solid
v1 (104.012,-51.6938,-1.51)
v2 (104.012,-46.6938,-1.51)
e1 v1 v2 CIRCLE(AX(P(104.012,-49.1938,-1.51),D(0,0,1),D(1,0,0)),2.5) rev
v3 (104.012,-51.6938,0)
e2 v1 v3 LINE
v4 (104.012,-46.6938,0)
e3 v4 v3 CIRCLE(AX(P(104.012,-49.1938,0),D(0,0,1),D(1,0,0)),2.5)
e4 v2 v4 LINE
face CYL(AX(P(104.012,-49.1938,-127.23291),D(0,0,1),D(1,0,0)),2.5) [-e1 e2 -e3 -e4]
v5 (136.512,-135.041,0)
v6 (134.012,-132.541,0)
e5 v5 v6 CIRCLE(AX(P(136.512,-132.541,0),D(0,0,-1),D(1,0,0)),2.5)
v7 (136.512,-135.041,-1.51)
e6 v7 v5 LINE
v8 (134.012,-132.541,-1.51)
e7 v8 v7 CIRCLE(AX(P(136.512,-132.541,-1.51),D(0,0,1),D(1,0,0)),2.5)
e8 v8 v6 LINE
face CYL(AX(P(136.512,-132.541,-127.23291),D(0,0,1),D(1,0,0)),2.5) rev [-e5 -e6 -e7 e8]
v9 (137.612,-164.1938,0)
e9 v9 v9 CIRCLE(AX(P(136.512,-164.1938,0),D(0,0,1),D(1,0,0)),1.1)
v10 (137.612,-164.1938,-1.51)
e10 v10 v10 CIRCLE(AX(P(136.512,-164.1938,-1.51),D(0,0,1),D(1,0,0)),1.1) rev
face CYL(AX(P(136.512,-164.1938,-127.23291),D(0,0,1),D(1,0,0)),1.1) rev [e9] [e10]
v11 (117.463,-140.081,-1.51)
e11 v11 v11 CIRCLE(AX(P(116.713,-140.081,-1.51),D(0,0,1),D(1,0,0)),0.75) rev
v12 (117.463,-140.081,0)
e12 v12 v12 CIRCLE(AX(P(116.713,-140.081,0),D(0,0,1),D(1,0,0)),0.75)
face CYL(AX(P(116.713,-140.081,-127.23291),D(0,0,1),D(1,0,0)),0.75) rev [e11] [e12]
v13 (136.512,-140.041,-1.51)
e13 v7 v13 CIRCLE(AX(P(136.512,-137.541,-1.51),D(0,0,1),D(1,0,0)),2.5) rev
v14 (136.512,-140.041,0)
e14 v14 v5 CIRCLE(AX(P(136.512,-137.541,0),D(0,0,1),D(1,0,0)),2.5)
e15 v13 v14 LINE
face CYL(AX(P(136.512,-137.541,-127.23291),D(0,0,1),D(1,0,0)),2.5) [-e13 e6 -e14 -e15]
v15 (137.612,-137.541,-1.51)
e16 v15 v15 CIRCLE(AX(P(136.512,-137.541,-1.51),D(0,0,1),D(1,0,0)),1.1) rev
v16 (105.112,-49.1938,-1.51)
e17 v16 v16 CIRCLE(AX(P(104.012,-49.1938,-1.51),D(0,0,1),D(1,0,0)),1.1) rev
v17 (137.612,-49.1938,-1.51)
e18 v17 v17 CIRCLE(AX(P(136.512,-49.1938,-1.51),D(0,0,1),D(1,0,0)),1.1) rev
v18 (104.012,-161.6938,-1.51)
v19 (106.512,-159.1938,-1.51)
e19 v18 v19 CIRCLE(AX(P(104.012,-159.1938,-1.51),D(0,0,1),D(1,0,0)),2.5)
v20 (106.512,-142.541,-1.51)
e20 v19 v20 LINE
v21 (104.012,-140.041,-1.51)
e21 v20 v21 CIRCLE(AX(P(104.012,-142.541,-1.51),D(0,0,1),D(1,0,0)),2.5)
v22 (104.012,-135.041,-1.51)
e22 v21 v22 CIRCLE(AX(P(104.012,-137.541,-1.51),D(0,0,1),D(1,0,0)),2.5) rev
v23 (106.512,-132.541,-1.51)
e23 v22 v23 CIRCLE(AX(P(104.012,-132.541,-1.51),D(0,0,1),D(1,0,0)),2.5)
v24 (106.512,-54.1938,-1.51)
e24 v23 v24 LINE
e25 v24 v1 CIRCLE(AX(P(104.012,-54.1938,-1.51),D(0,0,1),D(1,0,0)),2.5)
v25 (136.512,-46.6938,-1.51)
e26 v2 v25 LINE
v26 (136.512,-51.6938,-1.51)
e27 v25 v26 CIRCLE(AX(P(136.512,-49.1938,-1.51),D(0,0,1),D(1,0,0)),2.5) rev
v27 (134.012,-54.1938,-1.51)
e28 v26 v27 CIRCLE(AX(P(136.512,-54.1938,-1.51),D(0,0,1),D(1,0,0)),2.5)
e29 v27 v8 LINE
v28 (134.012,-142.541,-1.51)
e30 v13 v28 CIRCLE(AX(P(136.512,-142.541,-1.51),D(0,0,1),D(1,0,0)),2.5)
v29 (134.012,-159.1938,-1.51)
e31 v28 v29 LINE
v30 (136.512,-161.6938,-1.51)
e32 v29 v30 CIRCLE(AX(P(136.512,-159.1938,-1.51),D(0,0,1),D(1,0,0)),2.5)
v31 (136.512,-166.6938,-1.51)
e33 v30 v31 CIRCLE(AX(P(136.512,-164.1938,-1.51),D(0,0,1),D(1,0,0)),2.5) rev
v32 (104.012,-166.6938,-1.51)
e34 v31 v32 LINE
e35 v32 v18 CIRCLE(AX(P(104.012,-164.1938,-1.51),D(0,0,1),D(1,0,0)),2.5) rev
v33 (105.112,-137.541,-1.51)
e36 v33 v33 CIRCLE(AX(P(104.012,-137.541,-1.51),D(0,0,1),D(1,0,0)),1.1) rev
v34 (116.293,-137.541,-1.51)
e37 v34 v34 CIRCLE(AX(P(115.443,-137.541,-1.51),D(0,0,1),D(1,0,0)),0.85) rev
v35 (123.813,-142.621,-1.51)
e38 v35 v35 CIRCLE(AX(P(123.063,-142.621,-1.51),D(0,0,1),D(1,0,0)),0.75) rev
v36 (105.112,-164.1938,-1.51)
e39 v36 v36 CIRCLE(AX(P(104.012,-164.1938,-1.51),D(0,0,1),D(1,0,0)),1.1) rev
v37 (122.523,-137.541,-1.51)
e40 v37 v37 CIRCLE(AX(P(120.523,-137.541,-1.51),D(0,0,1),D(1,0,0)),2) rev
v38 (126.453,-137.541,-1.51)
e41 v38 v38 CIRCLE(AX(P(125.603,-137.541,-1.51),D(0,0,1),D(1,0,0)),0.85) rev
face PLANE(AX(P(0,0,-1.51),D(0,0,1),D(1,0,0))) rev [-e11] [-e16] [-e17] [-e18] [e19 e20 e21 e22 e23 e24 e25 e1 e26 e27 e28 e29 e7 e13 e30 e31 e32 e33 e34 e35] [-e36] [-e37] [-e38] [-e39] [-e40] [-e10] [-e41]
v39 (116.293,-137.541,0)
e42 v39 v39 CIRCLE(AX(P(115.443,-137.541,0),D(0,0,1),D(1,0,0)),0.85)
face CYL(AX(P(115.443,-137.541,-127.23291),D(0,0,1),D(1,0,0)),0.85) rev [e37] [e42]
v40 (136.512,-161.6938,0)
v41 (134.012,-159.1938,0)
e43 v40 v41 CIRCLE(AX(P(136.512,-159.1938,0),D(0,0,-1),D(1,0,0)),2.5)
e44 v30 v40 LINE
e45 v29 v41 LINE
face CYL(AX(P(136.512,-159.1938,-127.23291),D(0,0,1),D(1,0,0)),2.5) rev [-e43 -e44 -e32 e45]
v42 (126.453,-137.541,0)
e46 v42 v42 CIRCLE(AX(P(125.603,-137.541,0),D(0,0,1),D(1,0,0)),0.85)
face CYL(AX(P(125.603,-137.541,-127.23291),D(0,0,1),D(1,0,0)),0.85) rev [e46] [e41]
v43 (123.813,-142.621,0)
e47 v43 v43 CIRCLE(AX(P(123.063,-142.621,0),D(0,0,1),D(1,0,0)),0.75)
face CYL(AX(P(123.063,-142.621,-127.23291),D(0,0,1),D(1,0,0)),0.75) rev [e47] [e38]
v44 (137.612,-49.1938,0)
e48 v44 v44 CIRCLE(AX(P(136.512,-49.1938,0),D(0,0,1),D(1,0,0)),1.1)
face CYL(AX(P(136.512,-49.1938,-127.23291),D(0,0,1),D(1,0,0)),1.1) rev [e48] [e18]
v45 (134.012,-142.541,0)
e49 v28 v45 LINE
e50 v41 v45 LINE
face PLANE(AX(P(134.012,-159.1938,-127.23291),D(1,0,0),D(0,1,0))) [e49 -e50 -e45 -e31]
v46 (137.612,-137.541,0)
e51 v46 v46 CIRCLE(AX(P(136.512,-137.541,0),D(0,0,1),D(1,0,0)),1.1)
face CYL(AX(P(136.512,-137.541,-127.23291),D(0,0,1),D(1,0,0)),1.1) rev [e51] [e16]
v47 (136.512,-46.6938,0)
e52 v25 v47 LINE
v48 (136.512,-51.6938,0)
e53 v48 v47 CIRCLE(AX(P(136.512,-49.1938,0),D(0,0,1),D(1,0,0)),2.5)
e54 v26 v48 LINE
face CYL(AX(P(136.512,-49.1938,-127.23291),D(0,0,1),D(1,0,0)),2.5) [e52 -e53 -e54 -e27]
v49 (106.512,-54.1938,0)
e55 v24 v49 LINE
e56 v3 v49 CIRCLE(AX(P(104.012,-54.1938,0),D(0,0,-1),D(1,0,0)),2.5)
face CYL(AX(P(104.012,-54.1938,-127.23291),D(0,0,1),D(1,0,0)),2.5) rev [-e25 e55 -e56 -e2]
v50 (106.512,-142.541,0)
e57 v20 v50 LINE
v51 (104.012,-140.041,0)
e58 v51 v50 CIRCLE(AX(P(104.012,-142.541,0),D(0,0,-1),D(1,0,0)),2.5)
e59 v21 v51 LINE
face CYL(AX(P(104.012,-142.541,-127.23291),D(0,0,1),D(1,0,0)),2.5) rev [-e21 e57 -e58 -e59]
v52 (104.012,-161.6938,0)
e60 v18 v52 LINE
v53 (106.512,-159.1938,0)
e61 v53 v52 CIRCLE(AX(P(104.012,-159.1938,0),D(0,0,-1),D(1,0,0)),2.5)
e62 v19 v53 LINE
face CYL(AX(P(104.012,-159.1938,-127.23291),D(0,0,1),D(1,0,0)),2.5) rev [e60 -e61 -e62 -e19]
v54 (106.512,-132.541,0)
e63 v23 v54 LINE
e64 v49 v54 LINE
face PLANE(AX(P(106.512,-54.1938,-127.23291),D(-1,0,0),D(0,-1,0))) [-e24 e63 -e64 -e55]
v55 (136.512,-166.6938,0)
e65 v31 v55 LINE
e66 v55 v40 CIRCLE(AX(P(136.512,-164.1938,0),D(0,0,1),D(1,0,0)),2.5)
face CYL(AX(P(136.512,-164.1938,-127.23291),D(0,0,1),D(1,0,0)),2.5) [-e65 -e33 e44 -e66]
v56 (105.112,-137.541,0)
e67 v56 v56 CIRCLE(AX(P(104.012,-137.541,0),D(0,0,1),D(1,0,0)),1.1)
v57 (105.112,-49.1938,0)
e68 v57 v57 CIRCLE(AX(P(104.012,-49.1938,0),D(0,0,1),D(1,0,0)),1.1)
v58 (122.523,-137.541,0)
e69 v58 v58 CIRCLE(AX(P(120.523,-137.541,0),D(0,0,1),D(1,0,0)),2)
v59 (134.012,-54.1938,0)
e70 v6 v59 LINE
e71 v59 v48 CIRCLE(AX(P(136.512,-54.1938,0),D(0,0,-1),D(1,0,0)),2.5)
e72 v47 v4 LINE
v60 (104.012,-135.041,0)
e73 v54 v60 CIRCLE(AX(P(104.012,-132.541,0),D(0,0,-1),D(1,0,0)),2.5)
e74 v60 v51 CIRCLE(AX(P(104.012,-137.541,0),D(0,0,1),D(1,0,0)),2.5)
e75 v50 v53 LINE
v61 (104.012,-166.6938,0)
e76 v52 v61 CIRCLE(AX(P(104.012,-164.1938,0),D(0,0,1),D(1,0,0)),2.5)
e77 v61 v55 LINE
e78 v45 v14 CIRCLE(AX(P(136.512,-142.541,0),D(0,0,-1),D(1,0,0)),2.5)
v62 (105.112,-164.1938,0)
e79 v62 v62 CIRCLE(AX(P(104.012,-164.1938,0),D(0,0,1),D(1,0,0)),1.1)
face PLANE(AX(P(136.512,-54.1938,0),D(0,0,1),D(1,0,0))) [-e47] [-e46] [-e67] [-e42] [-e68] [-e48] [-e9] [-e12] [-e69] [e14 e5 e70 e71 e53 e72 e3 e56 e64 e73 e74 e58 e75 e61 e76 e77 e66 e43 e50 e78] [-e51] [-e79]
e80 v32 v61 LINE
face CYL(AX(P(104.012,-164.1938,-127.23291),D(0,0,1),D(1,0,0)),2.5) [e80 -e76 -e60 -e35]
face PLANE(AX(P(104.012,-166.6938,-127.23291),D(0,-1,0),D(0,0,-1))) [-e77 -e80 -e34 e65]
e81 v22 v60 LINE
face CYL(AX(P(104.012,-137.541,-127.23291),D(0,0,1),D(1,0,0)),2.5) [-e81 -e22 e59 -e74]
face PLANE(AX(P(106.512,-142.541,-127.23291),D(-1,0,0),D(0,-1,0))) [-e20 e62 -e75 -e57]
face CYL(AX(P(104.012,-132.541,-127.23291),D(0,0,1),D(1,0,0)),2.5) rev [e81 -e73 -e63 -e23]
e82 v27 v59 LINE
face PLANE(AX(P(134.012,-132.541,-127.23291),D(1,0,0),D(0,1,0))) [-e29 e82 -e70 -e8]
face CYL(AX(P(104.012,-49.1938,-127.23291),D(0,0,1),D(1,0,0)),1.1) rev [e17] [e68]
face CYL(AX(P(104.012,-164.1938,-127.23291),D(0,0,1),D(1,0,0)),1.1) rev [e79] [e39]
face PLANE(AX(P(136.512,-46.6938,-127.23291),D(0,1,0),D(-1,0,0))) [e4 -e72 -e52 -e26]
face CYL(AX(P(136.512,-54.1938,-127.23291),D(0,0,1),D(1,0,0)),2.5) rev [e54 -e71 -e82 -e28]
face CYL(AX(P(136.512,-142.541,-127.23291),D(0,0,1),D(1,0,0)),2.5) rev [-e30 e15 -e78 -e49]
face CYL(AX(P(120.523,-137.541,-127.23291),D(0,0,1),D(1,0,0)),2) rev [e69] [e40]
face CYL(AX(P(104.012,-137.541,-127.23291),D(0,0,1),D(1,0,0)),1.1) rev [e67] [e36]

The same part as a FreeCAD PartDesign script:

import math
import FreeCAD as App
import Part
import Sketcher

V = App.Vector

doc = App.newDocument("Part")
params = doc.addObject("Spreadsheet::Sheet", "Params")
for row, (alias, value) in enumerate([
    ("sketch1_diameter", "4 mm"),
    ("sketch1_diameter2", "2.2 mm"),
    ("sketch1_diameter3", "1.7 mm"),
    ("sketch1_diameter4", "1.5 mm"),
    ("sketch1_radius", "2.5 mm"),
    ("pad1_length", "1.51 mm"),
], start=1):
    params.set(f"A{row}", alias)
    params.set(f"B{row}", "=" + value)
    params.setAlias(f"B{row}", alias)

body = doc.addObject("PartDesign::Body", "Body")

sketch1 = body.newObject("Sketcher::SketchObject", "Sketch")
sketch1.AttachmentSupport = (doc.getObject("XY_Plane"), [""])
sketch1.MapMode = "FlatFace"
sketch1.addGeometry(Part.LineSegment(V(136.5, -46.7, 0), V(104, -46.7, 0)), False)
sketch1.addGeometry(Part.ArcOfCircle(Part.Circle(V(104, -49.2, 0), V(0, 0, 1), 2.5), math.radians(90), math.radians(270)), False)
sketch1.addGeometry(Part.ArcOfCircle(Part.Circle(V(104, -54.2, 0), V(0, 0, 1), 2.5), math.radians(0), math.radians(90)), False)
sketch1.addGeometry(Part.LineSegment(V(106.5, -54.2, 0), V(106.5, -132.5, 0)), False)
sketch1.addGeometry(Part.ArcOfCircle(Part.Circle(V(104, -132.5, 0), V(0, 0, 1), 2.5), math.radians(-90), math.radians(0)), False)
sketch1.addGeometry(Part.ArcOfCircle(Part.Circle(V(104, -137.5, 0), V(0, 0, 1), 2.5), math.radians(90), math.radians(270)), False)
sketch1.addGeometry(Part.ArcOfCircle(Part.Circle(V(104, -142.5, 0), V(0, 0, 1), 2.5), math.radians(0), math.radians(90)), False)
sketch1.addGeometry(Part.LineSegment(V(106.5, -142.5, 0), V(106.5, -159.2, 0)), False)
sketch1.addGeometry(Part.ArcOfCircle(Part.Circle(V(104, -159.2, 0), V(0, 0, 1), 2.5), math.radians(-90), math.radians(0)), False)
sketch1.addGeometry(Part.ArcOfCircle(Part.Circle(V(104, -164.2, 0), V(0, 0, 1), 2.5), math.radians(90), math.radians(270)), False)
sketch1.addGeometry(Part.LineSegment(V(104, -166.7, 0), V(136.5, -166.7, 0)), False)
sketch1.addGeometry(Part.ArcOfCircle(Part.Circle(V(136.5, -164.2, 0), V(0, 0, 1), 2.5), math.radians(-90), math.radians(90)), False)
sketch1.addGeometry(Part.ArcOfCircle(Part.Circle(V(136.5, -159.2, 0), V(0, 0, 1), 2.5), math.radians(180), math.radians(270)), False)
sketch1.addGeometry(Part.LineSegment(V(134, -159.2, 0), V(134, -142.5, 0)), False)
sketch1.addGeometry(Part.ArcOfCircle(Part.Circle(V(136.5, -142.5, 0), V(0, 0, 1), 2.5), math.radians(90), math.radians(180)), False)
sketch1.addGeometry(Part.ArcOfCircle(Part.Circle(V(136.5, -137.5, 0), V(0, 0, 1), 2.5), math.radians(-90), math.radians(90)), False)
sketch1.addGeometry(Part.ArcOfCircle(Part.Circle(V(136.5, -132.5, 0), V(0, 0, 1), 2.5), math.radians(180), math.radians(270)), False)
sketch1.addGeometry(Part.LineSegment(V(134, -132.5, 0), V(134, -54.2, 0)), False)
sketch1.addGeometry(Part.ArcOfCircle(Part.Circle(V(136.5, -54.2, 0), V(0, 0, 1), 2.5), math.radians(90), math.radians(180)), False)
sketch1.addGeometry(Part.ArcOfCircle(Part.Circle(V(136.5, -49.2, 0), V(0, 0, 1), 2.5), math.radians(-90), math.radians(90)), False)
sketch1.addGeometry(Part.Circle(V(104, -164.2, 0), V(0, 0, 1), 1.1), False)
sketch1.addGeometry(Part.Circle(V(104, -137.5, 0), V(0, 0, 1), 1.1), False)
sketch1.addGeometry(Part.Circle(V(115.4, -137.5, 0), V(0, 0, 1), 0.8), False)
sketch1.addGeometry(Part.Circle(V(116.7, -140.1, 0), V(0, 0, 1), 0.8), False)
sketch1.addGeometry(Part.Circle(V(120.5, -137.5, 0), V(0, 0, 1), 2), False)
sketch1.addGeometry(Part.Circle(V(123.1, -142.6, 0), V(0, 0, 1), 0.8), False)
sketch1.addGeometry(Part.Circle(V(125.6, -137.5, 0), V(0, 0, 1), 0.8), False)
sketch1.addGeometry(Part.Circle(V(136.5, -164.2, 0), V(0, 0, 1), 1.1), False)
sketch1.addGeometry(Part.Circle(V(136.5, -137.5, 0), V(0, 0, 1), 1.1), False)
sketch1.addGeometry(Part.Circle(V(104, -49.2, 0), V(0, 0, 1), 1.1), False)
sketch1.addGeometry(Part.Circle(V(136.5, -49.2, 0), V(0, 0, 1), 1.1), False)
sketch1.addConstraint(Sketcher.Constraint("Tangent", 0, 2, 1, 1))
sketch1.addConstraint(Sketcher.Constraint("Tangent", 1, 2, 2, 2))
sketch1.addConstraint(Sketcher.Constraint("Tangent", 2, 1, 3, 1))
sketch1.addConstraint(Sketcher.Constraint("Tangent", 3, 2, 4, 2))
sketch1.addConstraint(Sketcher.Constraint("Tangent", 4, 1, 5, 1))
sketch1.addConstraint(Sketcher.Constraint("Tangent", 5, 2, 6, 2))
sketch1.addConstraint(Sketcher.Constraint("Tangent", 6, 1, 7, 1))
sketch1.addConstraint(Sketcher.Constraint("Tangent", 7, 2, 8, 2))
sketch1.addConstraint(Sketcher.Constraint("Tangent", 8, 1, 9, 1))
sketch1.addConstraint(Sketcher.Constraint("Tangent", 9, 2, 10, 1))
sketch1.addConstraint(Sketcher.Constraint("Tangent", 10, 2, 11, 1))
sketch1.addConstraint(Sketcher.Constraint("Tangent", 11, 2, 12, 2))
sketch1.addConstraint(Sketcher.Constraint("Tangent", 12, 1, 13, 1))
sketch1.addConstraint(Sketcher.Constraint("Tangent", 13, 2, 14, 2))
sketch1.addConstraint(Sketcher.Constraint("Tangent", 14, 1, 15, 1))
sketch1.addConstraint(Sketcher.Constraint("Tangent", 15, 2, 16, 2))
sketch1.addConstraint(Sketcher.Constraint("Tangent", 16, 1, 17, 1))
sketch1.addConstraint(Sketcher.Constraint("Tangent", 17, 2, 18, 2))
sketch1.addConstraint(Sketcher.Constraint("Tangent", 18, 1, 19, 1))
sketch1.addConstraint(Sketcher.Constraint("Tangent", 19, 2, 0, 1))
sketch1.addConstraint(Sketcher.Constraint("Horizontal", 0))
sketch1.addConstraint(Sketcher.Constraint("Vertical", 3))
sketch1.addConstraint(Sketcher.Constraint("Vertical", 7))
sketch1.addConstraint(Sketcher.Constraint("Horizontal", 10))
sketch1.addConstraint(Sketcher.Constraint("Vertical", 13))
sketch1.addConstraint(Sketcher.Constraint("Vertical", 17))
sketch1.addConstraint(Sketcher.Constraint("Coincident", 20, 3, 9, 3))
sketch1.addConstraint(Sketcher.Constraint("Coincident", 21, 3, 5, 3))
sketch1.addConstraint(Sketcher.Constraint("Coincident", 27, 3, 11, 3))
sketch1.addConstraint(Sketcher.Constraint("Coincident", 28, 3, 15, 3))
sketch1.addConstraint(Sketcher.Constraint("Coincident", 29, 3, 1, 3))
sketch1.addConstraint(Sketcher.Constraint("Coincident", 30, 3, 19, 3))
sketch1.addConstraint(Sketcher.Constraint("Equal", 1, 2))
sketch1.addConstraint(Sketcher.Constraint("Equal", 2, 4))
sketch1.addConstraint(Sketcher.Constraint("Equal", 4, 5))
sketch1.addConstraint(Sketcher.Constraint("Equal", 5, 6))
sketch1.addConstraint(Sketcher.Constraint("Equal", 6, 8))
sketch1.addConstraint(Sketcher.Constraint("Equal", 8, 9))
sketch1.addConstraint(Sketcher.Constraint("Equal", 9, 11))
sketch1.addConstraint(Sketcher.Constraint("Equal", 11, 12))
sketch1.addConstraint(Sketcher.Constraint("Equal", 12, 14))
sketch1.addConstraint(Sketcher.Constraint("Equal", 14, 15))
sketch1.addConstraint(Sketcher.Constraint("Equal", 15, 16))
sketch1.addConstraint(Sketcher.Constraint("Equal", 16, 18))
sketch1.addConstraint(Sketcher.Constraint("Equal", 18, 19))
sketch1.addConstraint(Sketcher.Constraint("Equal", 20, 21))
sketch1.addConstraint(Sketcher.Constraint("Equal", 23, 25))
sketch1.addConstraint(Sketcher.Constraint("Equal", 22, 26))
sketch1.addConstraint(Sketcher.Constraint("Equal", 21, 27))
sketch1.addConstraint(Sketcher.Constraint("Equal", 27, 28))
sketch1.addConstraint(Sketcher.Constraint("Equal", 28, 29))
sketch1.addConstraint(Sketcher.Constraint("Equal", 29, 30))
sketch1.addConstraint(Sketcher.Constraint("Horizontal", 6, 3, 14, 3))
sketch1.addConstraint(Sketcher.Constraint("Horizontal", 21, 3, 22, 3))
sketch1.addConstraint(Sketcher.Constraint("Horizontal", 22, 3, 24, 3))
sketch1.addConstraint(Sketcher.Constraint("Horizontal", 24, 3, 26, 3))
sketch1.addConstraint(Sketcher.Constraint("Vertical", 1, 3, 2, 3))
sketch1.addConstraint(Sketcher.Constraint("Vertical", 4, 3, 5, 3))
sketch1.addConstraint(Sketcher.Constraint("Vertical", 5, 3, 6, 3))
sketch1.addConstraint(Sketcher.Constraint("Vertical", 8, 3, 9, 3))
sketch1.addConstraint(Sketcher.Constraint("Vertical", 11, 3, 12, 3))
sketch1.addConstraint(Sketcher.Constraint("Vertical", 14, 3, 15, 3))
sketch1.addConstraint(Sketcher.Constraint("Vertical", 15, 3, 16, 3))
sketch1.addConstraint(Sketcher.Constraint("Vertical", 18, 3, 19, 3))
sketch1.addConstraint(Sketcher.Constraint("Diameter", 24, 4.0))
sketch1.addConstraint(Sketcher.Constraint("Diameter", 20, 2.2))
sketch1.addConstraint(Sketcher.Constraint("Diameter", 22, 1.7))
sketch1.addConstraint(Sketcher.Constraint("Diameter", 23, 1.5))
sketch1.addConstraint(Sketcher.Constraint("Radius", 1, 2.5))
sketch1.addConstraint(Sketcher.Constraint("DistanceX", 0, 2, 0, 1, 32.5))
sketch1.addConstraint(Sketcher.Constraint("DistanceY", 8, 3, 2, 3, 105.0))
sketch1.addConstraint(Sketcher.Constraint("DistanceX", 22, 3, 23, 3, 1.27))
sketch1.addConstraint(Sketcher.Constraint("DistanceY", 23, 3, 22, 3, 2.54))
sketch1.addConstraint(Sketcher.Constraint("DistanceX", 23, 3, 24, 3, 3.81))
sketch1.addConstraint(Sketcher.Constraint("DistanceX", 24, 3, 25, 3, 2.54))
sketch1.addConstraint(Sketcher.Constraint("DistanceY", 25, 3, 24, 3, 5.08))
sketch1.addConstraint(Sketcher.Constraint("DistanceX", 24, 3, 26, 3, 5.08))
sketch1.addConstraint(Sketcher.Constraint("DistanceY", 3, 2, 3, 1, 78.3472))
sketch1.addConstraint(Sketcher.Constraint("DistanceX", -1, 1, 1, 3, 104.012))
sketch1.addConstraint(Sketcher.Constraint("DistanceY", 4, 3, -1, 1, 132.541))
sketch1.addConstraint(Sketcher.Constraint("DistanceX", -1, 1, 22, 3, 115.443))
sketch1.setExpression("Constraints[64]", "Params.sketch1_diameter")
sketch1.setExpression("Constraints[65]", "Params.sketch1_diameter2")
sketch1.setExpression("Constraints[66]", "Params.sketch1_diameter3")
sketch1.setExpression("Constraints[67]", "Params.sketch1_diameter4")
sketch1.setExpression("Constraints[68]", "Params.sketch1_radius")
pad1 = body.newObject("PartDesign::Pad", "Pad")
pad1.Profile = sketch1
pad1.setExpression("Length", "Params.pad1_length")
pad1.Reversed = True

doc.recompute()
